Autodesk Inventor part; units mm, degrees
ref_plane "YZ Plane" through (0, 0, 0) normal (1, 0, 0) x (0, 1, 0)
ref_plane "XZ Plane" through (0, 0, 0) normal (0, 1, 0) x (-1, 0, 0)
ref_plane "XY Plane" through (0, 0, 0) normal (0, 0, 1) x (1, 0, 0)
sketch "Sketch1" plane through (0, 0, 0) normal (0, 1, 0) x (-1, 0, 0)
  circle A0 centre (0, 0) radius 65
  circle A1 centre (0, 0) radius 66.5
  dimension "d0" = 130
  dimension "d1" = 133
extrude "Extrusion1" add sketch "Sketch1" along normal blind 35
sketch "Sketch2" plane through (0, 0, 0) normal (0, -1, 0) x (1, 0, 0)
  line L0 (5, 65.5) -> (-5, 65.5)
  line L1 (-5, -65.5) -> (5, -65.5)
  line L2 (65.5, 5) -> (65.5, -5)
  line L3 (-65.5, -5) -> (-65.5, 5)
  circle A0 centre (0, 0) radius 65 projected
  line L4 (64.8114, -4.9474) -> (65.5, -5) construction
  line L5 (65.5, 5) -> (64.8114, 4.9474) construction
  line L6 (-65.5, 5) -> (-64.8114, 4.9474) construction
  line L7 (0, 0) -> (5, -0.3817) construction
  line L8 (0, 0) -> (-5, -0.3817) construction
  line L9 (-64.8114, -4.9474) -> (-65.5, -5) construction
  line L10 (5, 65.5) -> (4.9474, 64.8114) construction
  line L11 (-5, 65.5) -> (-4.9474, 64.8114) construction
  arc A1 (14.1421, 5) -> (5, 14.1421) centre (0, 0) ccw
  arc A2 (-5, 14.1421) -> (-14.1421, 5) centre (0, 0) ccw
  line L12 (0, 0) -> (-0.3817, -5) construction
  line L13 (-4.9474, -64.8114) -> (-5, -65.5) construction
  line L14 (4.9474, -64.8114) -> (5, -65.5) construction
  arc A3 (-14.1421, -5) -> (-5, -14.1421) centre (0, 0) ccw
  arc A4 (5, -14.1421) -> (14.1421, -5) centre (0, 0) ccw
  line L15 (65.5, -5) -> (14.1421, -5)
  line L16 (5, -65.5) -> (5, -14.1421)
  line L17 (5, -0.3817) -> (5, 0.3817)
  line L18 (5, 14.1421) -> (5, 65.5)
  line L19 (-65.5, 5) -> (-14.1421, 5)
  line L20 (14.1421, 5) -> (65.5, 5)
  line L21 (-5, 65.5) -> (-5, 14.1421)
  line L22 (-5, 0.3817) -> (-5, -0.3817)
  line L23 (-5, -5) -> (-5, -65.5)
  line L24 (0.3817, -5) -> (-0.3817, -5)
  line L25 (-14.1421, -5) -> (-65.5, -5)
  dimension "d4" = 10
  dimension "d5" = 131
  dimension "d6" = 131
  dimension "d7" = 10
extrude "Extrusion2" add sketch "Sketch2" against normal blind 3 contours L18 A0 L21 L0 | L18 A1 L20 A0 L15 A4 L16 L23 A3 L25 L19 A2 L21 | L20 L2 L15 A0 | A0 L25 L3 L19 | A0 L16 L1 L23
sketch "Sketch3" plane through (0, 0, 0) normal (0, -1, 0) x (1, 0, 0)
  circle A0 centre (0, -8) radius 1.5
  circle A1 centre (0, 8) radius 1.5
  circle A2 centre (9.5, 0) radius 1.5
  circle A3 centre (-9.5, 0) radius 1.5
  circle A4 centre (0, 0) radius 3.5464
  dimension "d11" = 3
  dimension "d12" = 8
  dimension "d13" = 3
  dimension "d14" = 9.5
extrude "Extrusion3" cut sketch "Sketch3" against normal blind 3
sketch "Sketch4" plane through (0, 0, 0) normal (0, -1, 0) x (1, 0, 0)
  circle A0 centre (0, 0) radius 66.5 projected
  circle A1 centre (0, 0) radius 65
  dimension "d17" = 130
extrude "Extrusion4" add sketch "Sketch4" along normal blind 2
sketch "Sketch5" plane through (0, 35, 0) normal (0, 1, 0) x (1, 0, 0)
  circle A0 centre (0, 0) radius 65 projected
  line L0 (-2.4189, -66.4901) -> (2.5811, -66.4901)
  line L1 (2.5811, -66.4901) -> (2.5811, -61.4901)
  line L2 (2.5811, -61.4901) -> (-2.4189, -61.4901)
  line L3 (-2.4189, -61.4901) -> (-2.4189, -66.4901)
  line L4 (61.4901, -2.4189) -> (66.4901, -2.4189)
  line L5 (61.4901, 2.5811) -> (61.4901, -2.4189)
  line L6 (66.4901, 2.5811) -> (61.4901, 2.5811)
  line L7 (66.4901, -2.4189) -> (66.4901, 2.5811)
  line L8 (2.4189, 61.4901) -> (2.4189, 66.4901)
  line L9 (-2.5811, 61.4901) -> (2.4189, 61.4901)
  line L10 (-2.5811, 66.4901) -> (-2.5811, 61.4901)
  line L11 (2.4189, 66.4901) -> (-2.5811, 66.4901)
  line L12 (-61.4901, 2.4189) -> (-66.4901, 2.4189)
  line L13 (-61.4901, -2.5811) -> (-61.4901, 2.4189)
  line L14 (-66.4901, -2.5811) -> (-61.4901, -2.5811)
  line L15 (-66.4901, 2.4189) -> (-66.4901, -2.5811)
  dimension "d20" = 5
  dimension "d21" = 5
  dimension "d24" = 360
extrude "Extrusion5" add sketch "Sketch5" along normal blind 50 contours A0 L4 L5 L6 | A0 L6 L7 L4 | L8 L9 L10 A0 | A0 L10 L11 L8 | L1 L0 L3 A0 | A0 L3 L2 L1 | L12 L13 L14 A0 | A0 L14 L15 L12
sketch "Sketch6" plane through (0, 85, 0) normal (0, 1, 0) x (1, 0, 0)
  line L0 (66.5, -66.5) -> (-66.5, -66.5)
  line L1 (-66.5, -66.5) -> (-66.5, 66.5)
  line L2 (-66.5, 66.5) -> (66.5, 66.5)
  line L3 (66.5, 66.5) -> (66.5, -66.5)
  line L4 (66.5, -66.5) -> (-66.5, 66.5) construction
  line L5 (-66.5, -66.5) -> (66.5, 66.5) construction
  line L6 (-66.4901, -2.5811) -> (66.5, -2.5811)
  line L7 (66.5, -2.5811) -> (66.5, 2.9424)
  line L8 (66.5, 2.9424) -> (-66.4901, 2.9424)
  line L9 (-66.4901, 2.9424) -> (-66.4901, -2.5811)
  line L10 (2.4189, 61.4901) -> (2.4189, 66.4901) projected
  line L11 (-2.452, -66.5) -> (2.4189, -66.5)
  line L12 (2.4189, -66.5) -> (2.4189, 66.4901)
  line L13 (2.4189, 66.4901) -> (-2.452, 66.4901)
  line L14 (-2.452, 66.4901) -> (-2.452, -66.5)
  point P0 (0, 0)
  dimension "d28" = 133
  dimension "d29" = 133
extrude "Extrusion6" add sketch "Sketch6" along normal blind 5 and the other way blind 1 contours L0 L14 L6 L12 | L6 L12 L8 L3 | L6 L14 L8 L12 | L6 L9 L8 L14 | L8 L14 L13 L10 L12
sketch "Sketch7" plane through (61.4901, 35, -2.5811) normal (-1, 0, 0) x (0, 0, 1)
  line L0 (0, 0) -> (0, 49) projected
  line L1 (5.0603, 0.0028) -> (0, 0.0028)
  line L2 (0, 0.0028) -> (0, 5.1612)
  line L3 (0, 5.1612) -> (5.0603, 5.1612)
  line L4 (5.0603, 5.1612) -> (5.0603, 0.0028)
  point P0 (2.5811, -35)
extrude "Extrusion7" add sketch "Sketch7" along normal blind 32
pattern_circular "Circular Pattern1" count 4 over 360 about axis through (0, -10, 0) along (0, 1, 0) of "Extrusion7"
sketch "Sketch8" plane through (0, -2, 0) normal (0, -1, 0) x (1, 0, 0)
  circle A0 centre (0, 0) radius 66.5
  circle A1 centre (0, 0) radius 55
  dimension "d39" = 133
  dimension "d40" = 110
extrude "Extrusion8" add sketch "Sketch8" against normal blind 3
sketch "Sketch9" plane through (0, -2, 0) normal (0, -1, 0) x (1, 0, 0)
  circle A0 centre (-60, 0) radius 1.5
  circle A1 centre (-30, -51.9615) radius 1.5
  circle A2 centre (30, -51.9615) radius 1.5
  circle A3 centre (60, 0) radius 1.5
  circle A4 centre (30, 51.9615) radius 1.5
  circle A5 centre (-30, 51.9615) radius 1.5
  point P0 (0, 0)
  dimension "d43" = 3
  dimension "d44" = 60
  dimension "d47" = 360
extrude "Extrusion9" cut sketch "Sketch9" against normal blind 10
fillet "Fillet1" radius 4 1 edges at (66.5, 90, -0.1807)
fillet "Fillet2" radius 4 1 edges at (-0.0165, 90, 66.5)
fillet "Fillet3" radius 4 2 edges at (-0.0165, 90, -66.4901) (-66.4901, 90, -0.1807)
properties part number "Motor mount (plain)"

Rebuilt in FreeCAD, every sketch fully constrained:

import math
import FreeCAD as App
import Part
import Sketcher
Q = App.Units.Quantity


def edges_at(feature, points):
    """Names of the edges that pass closest to the given points."""
    edges = feature.Shape.Edges
    near = lambda p: min(range(len(edges)), key=lambda i: edges[i].distToShape(Part.Vertex(*p))[0])
    return sorted({f"Edge{near(p) + 1}" for p in points})


def add_polygon(sketch, points):
    """Adds a closed chain of lines whose ends are joined by coincident constraints."""
    first, n = sketch.GeometryCount, len(points)
    for a, b in zip(points, points[1:] + points[:1]):
        sketch.addGeometry(Part.LineSegment(App.Vector(*a, 0), App.Vector(*b, 0)), False)
    for i in range(n):
        sketch.addConstraint(Sketcher.Constraint("Coincident", first + i, 2, first + (i + 1) % n, 1))

doc = App.newDocument("Part")
params = doc.addObject("Spreadsheet::Sheet", "Params")
for row, (alias, value) in enumerate([
    ("sketch1_diameter", "133 mm"),
    ("sketch1_diameter2", "130 mm"),
    ("pad1_length", "35 mm"),
    ("sketch2_width", "10 mm"),
    ("sketch2_radius", "15 mm"),
    ("pad2_length", "3 mm"),
    ("sketch3_diameter", "3 mm"),
    ("pocket1_length", "3 mm"),
    ("sketch4_diameter", "130 mm"),
    ("sketch4_diameter2", "133 mm"),
    ("pad3_length", "2 mm"),
    ("sketch5_width", "5 mm"),
    ("pad4_length", "50 mm"),
    ("pad5_length", "5 mm"),
    ("pad5_length2", "1 mm"),
    ("pad6_length", "32 mm"),
    ("sketch8_diameter", "133 mm"),
    ("sketch8_diameter2", "110 mm"),
    ("pad7_length", "3 mm"),
    ("sketch9_diameter", "3 mm"),
    ("pocket2_length", "10 mm"),
    ("fillet_radius", "4 mm"),
    ("fillet2_radius", "4 mm"),
    ("fillet3_radius", "4 mm"),
], start=1):
    params.set(f"A{row}", alias)
    params.set(f"B{row}", "=" + value)
    params.setAlias(f"B{row}", alias)

body = doc.addObject("PartDesign::Body", "Body")

sketch1 = body.newObject("Sketcher::SketchObject", "Sketch")
sketch1.AttachmentSupport = (doc.getObject("XZ_Plane"), [""])
sketch1.MapMode = "FlatFace"
sketch1.addGeometry(Part.Circle(App.Vector(0, 0, 0), App.Vector(0, 0, 1), 66), False)
sketch1.addGeometry(Part.Circle(App.Vector(0, 0, 0), App.Vector(0, 0, 1), 65), False)
sketch1.addConstraint(Sketcher.Constraint("Coincident", 0, 3, -1, 1))
sketch1.addConstraint(Sketcher.Constraint("Coincident", 1, 3, -1, 1))
sketch1.addConstraint(Sketcher.Constraint("Diameter", 0, Q("133 mm")))
sketch1.addConstraint(Sketcher.Constraint("Diameter", 1, Q("130 mm")))
sketch1.setExpression("Constraints[2]", "Params.sketch1_diameter")
sketch1.setExpression("Constraints[3]", "Params.sketch1_diameter2")
pad1 = body.newObject("PartDesign::Pad", "Pad")
pad1.Profile = sketch1
pad1.setExpression("Length", "Params.pad1_length")
pad1.Reversed = True

sketch2 = body.newObject("Sketcher::SketchObject", "Sketch001")
sketch2.AttachmentSupport = (doc.getObject("XZ_Plane"), [""])
sketch2.MapMode = "FlatFace"
sketch2.addGeometry(Part.LineSegment(App.Vector(5, 66, 0), App.Vector(-5, 66, 0)), False)
sketch2.addGeometry(Part.LineSegment(App.Vector(-5, 66, 0), App.Vector(-5, 14, 0)), False)
sketch2.addGeometry(Part.ArcOfCircle(Part.Circle(App.Vector(0, 0, 0), App.Vector(0, 0, 1), 15), math.radians(109), math.radians(161)), False)
sketch2.addGeometry(Part.LineSegment(App.Vector(-14, 5, 0), App.Vector(-66, 5, 0)), False)
sketch2.addGeometry(Part.LineSegment(App.Vector(-66, 5, 0), App.Vector(-66, -5, 0)), False)
sketch2.addGeometry(Part.LineSegment(App.Vector(-66, -5, 0), App.Vector(-14, -5, 0)), False)
sketch2.addGeometry(Part.ArcOfCircle(Part.Circle(App.Vector(0, 0, 0), App.Vector(0, 0, 1), 15), math.radians(-161), math.radians(-109)), False)
sketch2.addGeometry(Part.LineSegment(App.Vector(-5, -14, 0), App.Vector(-5, -66, 0)), False)
sketch2.addGeometry(Part.LineSegment(App.Vector(-5, -66, 0), App.Vector(5, -66, 0)), False)
sketch2.addGeometry(Part.LineSegment(App.Vector(5, -66, 0), App.Vector(5, -14, 0)), False)
sketch2.addGeometry(Part.ArcOfCircle(Part.Circle(App.Vector(0, 0, 0), App.Vector(0, 0, 1), 15), math.radians(-71), math.radians(-19)), False)
sketch2.addGeometry(Part.LineSegment(App.Vector(14, -5, 0), App.Vector(66, -5, 0)), False)
sketch2.addGeometry(Part.LineSegment(App.Vector(66, -5, 0), App.Vector(66, 5, 0)), False)
sketch2.addGeometry(Part.LineSegment(App.Vector(66, 5, 0), App.Vector(14, 5, 0)), False)
sketch2.addGeometry(Part.ArcOfCircle(Part.Circle(App.Vector(0, 0, 0), App.Vector(0, 0, 1), 15), math.radians(19), math.radians(71)), False)
sketch2.addGeometry(Part.LineSegment(App.Vector(5, 14, 0), App.Vector(5, 66, 0)), False)
sketch2.addConstraint(Sketcher.Constraint("Coincident", 0, 2, 1, 1))
sketch2.addConstraint(Sketcher.Constraint("Coincident", 1, 2, 2, 1))
sketch2.addConstraint(Sketcher.Constraint("Coincident", 2, 2, 3, 1))
sketch2.addConstraint(Sketcher.Constraint("Coincident", 3, 2, 4, 1))
sketch2.addConstraint(Sketcher.Constraint("Coincident", 4, 2, 5, 1))
sketch2.addConstraint(Sketcher.Constraint("Coincident", 5, 2, 6, 1))
sketch2.addConstraint(Sketcher.Constraint("Coincident", 6, 2, 7, 1))
sketch2.addConstraint(Sketcher.Constraint("Coincident", 7, 2, 8, 1))
sketch2.addConstraint(Sketcher.Constraint("Coincident", 8, 2, 9, 1))
sketch2.addConstraint(Sketcher.Constraint("Coincident", 9, 2, 10, 1))
sketch2.addConstraint(Sketcher.Constraint("Coincident", 10, 2, 11, 1))
sketch2.addConstraint(Sketcher.Constraint("Coincident", 11, 2, 12, 1))
sketch2.addConstraint(Sketcher.Constraint("Coincident", 12, 2, 13, 1))
sketch2.addConstraint(Sketcher.Constraint("Coincident", 13, 2, 14, 1))
sketch2.addConstraint(Sketcher.Constraint("Coincident", 14, 2, 15, 1))
sketch2.addConstraint(Sketcher.Constraint("Coincident", 15, 2, 0, 1))
sketch2.addConstraint(Sketcher.Constraint("Horizontal", 0))
sketch2.addConstraint(Sketcher.Constraint("Vertical", 1))
sketch2.addConstraint(Sketcher.Constraint("Horizontal", 3))
sketch2.addConstraint(Sketcher.Constraint("Vertical", 4))
sketch2.addConstraint(Sketcher.Constraint("Horizontal", 5))
sketch2.addConstraint(Sketcher.Constraint("Vertical", 7))
sketch2.addConstraint(Sketcher.Constraint("Horizontal", 8))
sketch2.addConstraint(Sketcher.Constraint("Vertical", 9))
sketch2.addConstraint(Sketcher.Constraint("Horizontal", 11))
sketch2.addConstraint(Sketcher.Constraint("Vertical", 12))
sketch2.addConstraint(Sketcher.Constraint("Horizontal", 13))
sketch2.addConstraint(Sketcher.Constraint("Vertical", 15))
sketch2.addConstraint(Sketcher.Constraint("Coincident", 2, 3, -1, 1))
sketch2.addConstraint(Sketcher.Constraint("Coincident", 6, 3, -1, 1))
sketch2.addConstraint(Sketcher.Constraint("Coincident", 10, 3, -1, 1))
sketch2.addConstraint(Sketcher.Constraint("Coincident", 14, 3, -1, 1))
sketch2.addConstraint(Sketcher.Constraint("Equal", 2, 6))
sketch2.addConstraint(Sketcher.Constraint("Equal", 6, 10))
sketch2.addConstraint(Sketcher.Constraint("Equal", 10, 14))
sketch2.addConstraint(Sketcher.Constraint("Symmetric", 0, 2, 8, 2, -1, 1))
sketch2.addConstraint(Sketcher.Constraint("Symmetric", 3, 2, 11, 2, -1, 1))
sketch2.addConstraint(Sketcher.Constraint("Horizontal", 6, 2, 9, 2))
sketch2.addConstraint(Sketcher.Constraint("Horizontal", 5, 2, 10, 2))
sketch2.addConstraint(Sketcher.Constraint("Horizontal", 3, 2, 12, 2))
sketch2.addConstraint(Sketcher.Constraint("Horizontal", 1, 2, 14, 2))
sketch2.addConstraint(Sketcher.Constraint("Equal", 13, 1))
sketch2.addConstraint(Sketcher.Constraint("Equal", 8, 4))
sketch2.addConstraint(Sketcher.Constraint("DistanceX", 0, 2, 0, 1, Q("10 mm")))
sketch2.addConstraint(Sketcher.Constraint("Radius", 2, Q("15 mm")))
sketch2.addConstraint(Sketcher.Constraint("DistanceY", -1, 1, 0, 2, Q("65.5 mm")))
sketch2.setExpression("Constraints[43]", "Params.sketch2_width")
sketch2.setExpression("Constraints[44]", "Params.sketch2_radius")
pad2 = body.newObject("PartDesign::Pad", "Pad001")
pad2.Profile = sketch2
pad2.setExpression("Length", "Params.pad2_length")
pad2.Reversed = True

sketch3 = body.newObject("Sketcher::SketchObject", "Sketch002")
sketch3.AttachmentSupport = (doc.getObject("XZ_Plane"), [""])
sketch3.MapMode = "FlatFace"
sketch3.addGeometry(Part.Circle(App.Vector(0, -8, 0), App.Vector(0, 0, 1), 1.5), False)
sketch3.addGeometry(Part.Circle(App.Vector(0, 8, 0), App.Vector(0, 0, 1), 1.5), False)
sketch3.addGeometry(Part.Circle(App.Vector(9.5, 0, 0), App.Vector(0, 0, 1), 1.5), False)
sketch3.addGeometry(Part.Circle(App.Vector(-9.5, 0, 0), App.Vector(0, 0, 1), 1.5), False)
sketch3.addGeometry(Part.Circle(App.Vector(0, 0, 0), App.Vector(0, 0, 1), 3.5), False)
sketch3.addConstraint(Sketcher.Constraint("Coincident", 4, 3, -1, 1))
sketch3.addConstraint(Sketcher.Constraint("Equal", 0, 1))
sketch3.addConstraint(Sketcher.Constraint("Equal", 1, 2))
sketch3.addConstraint(Sketcher.Constraint("Equal", 2, 3))
sketch3.addConstraint(Sketcher.Constraint("Symmetric", 0, 3, 1, 3, -1, 1))
sketch3.addConstraint(Sketcher.Constraint("Symmetric", 2, 3, 3, 3, -1, 1))
sketch3.addConstraint(Sketcher.Constraint("PointOnObject", 0, 3, -2))
sketch3.addConstraint(Sketcher.Constraint("PointOnObject", 2, 3, -1))
sketch3.addConstraint(Sketcher.Constraint("Diameter", 0, Q("3 mm")))
sketch3.addConstraint(Sketcher.Constraint("DistanceY", 0, 3, -1, 1, Q("8 mm")))
sketch3.addConstraint(Sketcher.Constraint("DistanceX", -1, 1, 2, 3, Q("9.5 mm")))
sketch3.addConstraint(Sketcher.Constraint("Diameter", 4, Q("7.0928 mm")))
sketch3.setExpression("Constraints[8]", "Params.sketch3_diameter")
pocket1 = body.newObject("PartDesign::Pocket", "Pocket")
pocket1.Profile = sketch3
pocket1.setExpression("Length", "Params.pocket1_length")

sketch4 = body.newObject("Sketcher::SketchObject", "Sketch003")
sketch4.AttachmentSupport = (doc.getObject("XZ_Plane"), [""])
sketch4.MapMode = "FlatFace"
sketch4.addGeometry(Part.Circle(App.Vector(0, 0, 0), App.Vector(0, 0, 1), 66), False)
sketch4.addGeometry(Part.Circle(App.Vector(0, 0, 0), App.Vector(0, 0, 1), 65), False)
sketch4.addConstraint(Sketcher.Constraint("Coincident", 0, 3, -1, 1))
sketch4.addConstraint(Sketcher.Constraint("Coincident", 1, 3, -1, 1))
sketch4.addConstraint(Sketcher.Constraint("Diameter", 1, Q("130 mm")))
sketch4.addConstraint(Sketcher.Constraint("Diameter", 0, Q("133 mm")))
sketch4.setExpression("Constraints[2]", "Params.sketch4_diameter")
sketch4.setExpression("Constraints[3]", "Params.sketch4_diameter2")
pad3 = body.newObject("PartDesign::Pad", "Pad002")
pad3.Profile = sketch4
pad3.setExpression("Length", "Params.pad3_length")

sketch5 = body.newObject("Sketcher::SketchObject", "Sketch004")
sketch5.AttachmentSupport = (doc.getObject("XZ_Plane"), [""])
sketch5.MapMode = "FlatFace"
sketch5.AttachmentOffset = App.Placement(App.Vector(0, 0, -35), App.Rotation())
add_polygon(sketch5, [(61, 2), (66, 2), (66, -3), (61, -3)])
add_polygon(sketch5, [(2, -61), (2, -66), (-3, -66), (-3, -61)])
add_polygon(sketch5, [(3, 66), (3, 61), (-2, 61), (-2, 66)])
add_polygon(sketch5, [(-61, -2), (-66, -2), (-66, 3), (-61, 3)])
sketch5.addConstraint(Sketcher.Constraint("Horizontal", 0))
sketch5.addConstraint(Sketcher.Constraint("Vertical", 1))
sketch5.addConstraint(Sketcher.Constraint("Horizontal", 2))
sketch5.addConstraint(Sketcher.Constraint("Vertical", 3))
sketch5.addConstraint(Sketcher.Constraint("Vertical", 4))
sketch5.addConstraint(Sketcher.Constraint("Horizontal", 5))
sketch5.addConstraint(Sketcher.Constraint("Vertical", 6))
sketch5.addConstraint(Sketcher.Constraint("Horizontal", 7))
sketch5.addConstraint(Sketcher.Constraint("Vertical", 8))
sketch5.addConstraint(Sketcher.Constraint("Horizontal", 9))
sketch5.addConstraint(Sketcher.Constraint("Vertical", 10))
sketch5.addConstraint(Sketcher.Constraint("Horizontal", 11))
sketch5.addConstraint(Sketcher.Constraint("Horizontal", 12))
sketch5.addConstraint(Sketcher.Constraint("Vertical", 13))
sketch5.addConstraint(Sketcher.Constraint("Horizontal", 14))
sketch5.addConstraint(Sketcher.Constraint("Vertical", 15))
sketch5.addConstraint(Sketcher.Constraint("Symmetric", 6, 2, 8, 2, -1, 1))
sketch5.addConstraint(Sketcher.Constraint("Symmetric", 4, 2, 10, 2, -1, 1))
sketch5.addConstraint(Sketcher.Constraint("Symmetric", 0, 2, 12, 2, -1, 1))
sketch5.addConstraint(Sketcher.Constraint("Symmetric", 2, 2, 14, 2, -1, 1))
sketch5.addConstraint(Sketcher.Constraint("Equal", 2, 5))
sketch5.addConstraint(Sketcher.Constraint("Equal", 14, 1))
sketch5.addConstraint(Sketcher.Constraint("Equal", 3, 4))
sketch5.addConstraint(Sketcher.Constraint("DistanceX", 0, 1, 0, 2, Q("5 mm")))
sketch5.addConstraint(Sketcher.Constraint("DistanceX", -1, 1, 0, 2, Q("66.49 mm")))
sketch5.addConstraint(Sketcher.Constraint("DistanceY", 4, 2, -1, 1, Q("66.49 mm")))
sketch5.addConstraint(Sketcher.Constraint("DistanceY", -1, 1, 0, 2, Q("2.419 mm")))
sketch5.addConstraint(Sketcher.Constraint("DistanceX", -1, 1, 4, 2, Q("2.419 mm")))
sketch5.setExpression("Constraints[39]", "Params.sketch5_width")
pad4 = body.newObject("PartDesign::Pad", "Pad003")
pad4.Profile = sketch5
pad4.setExpression("Length", "Params.pad4_length")
pad4.Reversed = True

sketch6 = body.newObject("Sketcher::SketchObject", "Sketch005")
sketch6.AttachmentSupport = (doc.getObject("XZ_Plane"), [""])
sketch6.MapMode = "FlatFace"
sketch6.AttachmentOffset = App.Placement(App.Vector(0, 0, -85), App.Rotation())
add_polygon(sketch6, [(-2.5, 66.5), (2.4, 66.5), (2.4, 2.6), (66.5, 2.6), (66.5, -2.9), (2.4, -2.9), (2.4, -66.5), (-2.5, -66.5), (-2.5, -2.9), (-66.5, -2.9), (-66.5, 2.6), (-2.5, 2.6)])
sketch6.addConstraint(Sketcher.Constraint("Horizontal", 0))
sketch6.addConstraint(Sketcher.Constraint("Vertical", 1))
sketch6.addConstraint(Sketcher.Constraint("Horizontal", 2))
sketch6.addConstraint(Sketcher.Constraint("Vertical", 3))
sketch6.addConstraint(Sketcher.Constraint("Horizontal", 4))
sketch6.addConstraint(Sketcher.Constraint("Vertical", 5))
sketch6.addConstraint(Sketcher.Constraint("Horizontal", 6))
sketch6.addConstraint(Sketcher.Constraint("Vertical", 7))
sketch6.addConstraint(Sketcher.Constraint("Horizontal", 8))
sketch6.addConstraint(Sketcher.Constraint("Vertical", 9))
sketch6.addConstraint(Sketcher.Constraint("Horizontal", 10))
sketch6.addConstraint(Sketcher.Constraint("Vertical", 11))
sketch6.addConstraint(Sketcher.Constraint("Horizontal", 4, 2, 7, 2))
sketch6.addConstraint(Sketcher.Constraint("Horizontal", 2, 2, 9, 2))
sketch6.addConstraint(Sketcher.Constraint("Vertical", 1, 2, 4, 2))
sketch6.addConstraint(Sketcher.Constraint("Vertical", 7, 2, 10, 2))
sketch6.addConstraint(Sketcher.Constraint("DistanceY", -1, 1, 0, 2, Q("66.5 mm")))
sketch6.addConstraint(Sketcher.Constraint("DistanceX", -1, 1, 2, 2, Q("66.5 mm")))
sketch6.addConstraint(Sketcher.Constraint("DistanceX", 0, 1, 0, 2, Q("4.871 mm")))
sketch6.addConstraint(Sketcher.Constraint("DistanceX", 2, 1, 2, 2, Q("64.081 mm")))
sketch6.addConstraint(Sketcher.Constraint("DistanceX", 8, 2, 8, 1, Q("64.038 mm")))
sketch6.addConstraint(Sketcher.Constraint("DistanceY", 1, 2, 1, 1, Q("63.919 mm")))
sketch6.addConstraint(Sketcher.Constraint("DistanceY", 5, 2, -1, 1, Q("66.49 mm")))
sketch6.addConstraint(Sketcher.Constraint("DistanceY", 3, 2, 3, 1, Q("5.5235 mm")))
pad5 = body.newObject("PartDesign::Pad", "Pad004")
pad5.Profile = sketch6
pad5.Type = "TwoLengths"
pad5.setExpression("Length", "Params.pad5_length")
pad5.setExpression("Length2", "Params.pad5_length2")
pad5.Reversed = True

sketch7 = body.newObject("Sketcher::SketchObject", "Sketch006")
sketch7.AttachmentSupport = (doc.getObject("YZ_Plane"), [""])
sketch7.MapMode = "FlatFace"
sketch7.AttachmentOffset = App.Placement(App.Vector(0, 0, 61.4901), App.Rotation())
add_polygon(sketch7, [(40, -3), (35, -3), (35, 2), (40, 2)])
sketch7.addConstraint(Sketcher.Constraint("Horizontal", 0))
sketch7.addConstraint(Sketcher.Constraint("Vertical", 1))
sketch7.addConstraint(Sketcher.Constraint("Horizontal", 2))
sketch7.addConstraint(Sketcher.Constraint("Vertical", 3))
sketch7.addConstraint(Sketcher.Constraint("DistanceX", 0, 2, 0, 1, Q("5.1584 mm")))
sketch7.addConstraint(Sketcher.Constraint("DistanceY", 1, 1, 1, 2, Q("5.0603 mm")))
sketch7.addConstraint(Sketcher.Constraint("DistanceY", 0, 2, -1, 1, Q("2.581 mm")))
sketch7.addConstraint(Sketcher.Constraint("DistanceX", -1, 1, 0, 2, Q("35.0028 mm")))
pad6 = body.newObject("PartDesign::Pad", "Pad005")
pad6.Profile = sketch7
pad6.setExpression("Length", "Params.pad6_length")
pad6.Reversed = True
doc.recompute()

polarpattern = body.newObject("PartDesign::PolarPattern", "PolarPattern")
polarpattern.Originals = [pad6]
polarpattern.Axis = (doc.getObject("Y_Axis"), [""])
polarpattern.Angle = 360
polarpattern.Occurrences = 4
body.Tip = polarpattern

sketch8 = body.newObject("Sketcher::SketchObject", "Sketch007")
sketch8.AttachmentSupport = (doc.getObject("XZ_Plane"), [""])
sketch8.MapMode = "FlatFace"
sketch8.AttachmentOffset = App.Placement(App.Vector(0, 0, 2), App.Rotation())
sketch8.addGeometry(Part.Circle(App.Vector(0, 0, 0), App.Vector(0, 0, 1), 66), False)
sketch8.addGeometry(Part.Circle(App.Vector(0, 0, 0), App.Vector(0, 0, 1), 55), False)
sketch8.addConstraint(Sketcher.Constraint("Coincident", 0, 3, -1, 1))
sketch8.addConstraint(Sketcher.Constraint("Coincident", 1, 3, -1, 1))
sketch8.addConstraint(Sketcher.Constraint("Diameter", 0, Q("133 mm")))
sketch8.addConstraint(Sketcher.Constraint("Diameter", 1, Q("110 mm")))
sketch8.setExpression("Constraints[2]", "Params.sketch8_diameter")
sketch8.setExpression("Constraints[3]", "Params.sketch8_diameter2")
pad7 = body.newObject("PartDesign::Pad", "Pad006")
pad7.Profile = sketch8
pad7.setExpression("Length", "Params.pad7_length")
pad7.Reversed = True

sketch9 = body.newObject("Sketcher::SketchObject", "Sketch008")
sketch9.AttachmentSupport = (doc.getObject("XZ_Plane"), [""])
sketch9.MapMode = "FlatFace"
sketch9.AttachmentOffset = App.Placement(App.Vector(0, 0, 2), App.Rotation())
sketch9.addGeometry(Part.Circle(App.Vector(-60, 0, 0), App.Vector(0, 0, 1), 1.5), False)
sketch9.addGeometry(Part.Circle(App.Vector(-30, -52, 0), App.Vector(0, 0, 1), 1.5), False)
sketch9.addGeometry(Part.Circle(App.Vector(30, -52, 0), App.Vector(0, 0, 1), 1.5), False)
sketch9.addGeometry(Part.Circle(App.Vector(60, 0, 0), App.Vector(0, 0, 1), 1.5), False)
sketch9.addGeometry(Part.Circle(App.Vector(30, 52, 0), App.Vector(0, 0, 1), 1.5), False)
sketch9.addGeometry(Part.Circle(App.Vector(-30, 52, 0), App.Vector(0, 0, 1), 1.5), False)
sketch9.addConstraint(Sketcher.Constraint("Equal", 0, 1))
sketch9.addConstraint(Sketcher.Constraint("Equal", 1, 2))
sketch9.addConstraint(Sketcher.Constraint("Equal", 2, 3))
sketch9.addConstraint(Sketcher.Constraint("Equal", 3, 4))
sketch9.addConstraint(Sketcher.Constraint("Equal", 4, 5))
sketch9.addConstraint(Sketcher.Constraint("Symmetric", 0, 3, 3, 3, -1, 1))
sketch9.addConstraint(Sketcher.Constraint("Symmetric", 1, 3, 4, 3, -1, 1))
sketch9.addConstraint(Sketcher.Constraint("Symmetric", 2, 3, 5, 3, -1, 1))
sketch9.addConstraint(Sketcher.Constraint("Symmetric", 1, 3, 2, 3, -2))
sketch9.addConstraint(Sketcher.Constraint("PointOnObject", 0, 3, -1))
sketch9.addConstraint(Sketcher.Constraint("Diameter", 0, Q("3 mm")))
sketch9.addConstraint(Sketcher.Constraint("DistanceX", 0, 3, -1, 1, Q("60 mm")))
sketch9.addConstraint(Sketcher.Constraint("DistanceX", 1, 3, 2, 3, Q("60 mm")))
sketch9.addConstraint(Sketcher.Constraint("DistanceY", 2, 3, 4, 3, Q("103.923 mm")))
sketch9.setExpression("Constraints[10]", "Params.sketch9_diameter")
pocket2 = body.newObject("PartDesign::Pocket", "Pocket001")
pocket2.Profile = sketch9
pocket2.setExpression("Length", "Params.pocket2_length")
doc.recompute()

fillet = body.newObject("PartDesign::Fillet", "Fillet")
fillet.Base = (pocket2, edges_at(pocket2, [(66.5, 90, -0.181)]))
fillet.setExpression("Radius", "Params.fillet_radius")
doc.recompute()

fillet2 = body.newObject("PartDesign::Fillet", "Fillet001")
fillet2.Base = (fillet, edges_at(fillet, [(-0.017, 90, 66.5)]))
fillet2.setExpression("Radius", "Params.fillet2_radius")
doc.recompute()

fillet3 = body.newObject("PartDesign::Fillet", "Fillet002")
fillet3.Base = (fillet2, edges_at(fillet2, [(-0.017, 90, -66.49), (-66.49, 90, -0.181)]))
fillet3.setExpression("Radius", "Params.fillet3_radius")

doc.recompute()
